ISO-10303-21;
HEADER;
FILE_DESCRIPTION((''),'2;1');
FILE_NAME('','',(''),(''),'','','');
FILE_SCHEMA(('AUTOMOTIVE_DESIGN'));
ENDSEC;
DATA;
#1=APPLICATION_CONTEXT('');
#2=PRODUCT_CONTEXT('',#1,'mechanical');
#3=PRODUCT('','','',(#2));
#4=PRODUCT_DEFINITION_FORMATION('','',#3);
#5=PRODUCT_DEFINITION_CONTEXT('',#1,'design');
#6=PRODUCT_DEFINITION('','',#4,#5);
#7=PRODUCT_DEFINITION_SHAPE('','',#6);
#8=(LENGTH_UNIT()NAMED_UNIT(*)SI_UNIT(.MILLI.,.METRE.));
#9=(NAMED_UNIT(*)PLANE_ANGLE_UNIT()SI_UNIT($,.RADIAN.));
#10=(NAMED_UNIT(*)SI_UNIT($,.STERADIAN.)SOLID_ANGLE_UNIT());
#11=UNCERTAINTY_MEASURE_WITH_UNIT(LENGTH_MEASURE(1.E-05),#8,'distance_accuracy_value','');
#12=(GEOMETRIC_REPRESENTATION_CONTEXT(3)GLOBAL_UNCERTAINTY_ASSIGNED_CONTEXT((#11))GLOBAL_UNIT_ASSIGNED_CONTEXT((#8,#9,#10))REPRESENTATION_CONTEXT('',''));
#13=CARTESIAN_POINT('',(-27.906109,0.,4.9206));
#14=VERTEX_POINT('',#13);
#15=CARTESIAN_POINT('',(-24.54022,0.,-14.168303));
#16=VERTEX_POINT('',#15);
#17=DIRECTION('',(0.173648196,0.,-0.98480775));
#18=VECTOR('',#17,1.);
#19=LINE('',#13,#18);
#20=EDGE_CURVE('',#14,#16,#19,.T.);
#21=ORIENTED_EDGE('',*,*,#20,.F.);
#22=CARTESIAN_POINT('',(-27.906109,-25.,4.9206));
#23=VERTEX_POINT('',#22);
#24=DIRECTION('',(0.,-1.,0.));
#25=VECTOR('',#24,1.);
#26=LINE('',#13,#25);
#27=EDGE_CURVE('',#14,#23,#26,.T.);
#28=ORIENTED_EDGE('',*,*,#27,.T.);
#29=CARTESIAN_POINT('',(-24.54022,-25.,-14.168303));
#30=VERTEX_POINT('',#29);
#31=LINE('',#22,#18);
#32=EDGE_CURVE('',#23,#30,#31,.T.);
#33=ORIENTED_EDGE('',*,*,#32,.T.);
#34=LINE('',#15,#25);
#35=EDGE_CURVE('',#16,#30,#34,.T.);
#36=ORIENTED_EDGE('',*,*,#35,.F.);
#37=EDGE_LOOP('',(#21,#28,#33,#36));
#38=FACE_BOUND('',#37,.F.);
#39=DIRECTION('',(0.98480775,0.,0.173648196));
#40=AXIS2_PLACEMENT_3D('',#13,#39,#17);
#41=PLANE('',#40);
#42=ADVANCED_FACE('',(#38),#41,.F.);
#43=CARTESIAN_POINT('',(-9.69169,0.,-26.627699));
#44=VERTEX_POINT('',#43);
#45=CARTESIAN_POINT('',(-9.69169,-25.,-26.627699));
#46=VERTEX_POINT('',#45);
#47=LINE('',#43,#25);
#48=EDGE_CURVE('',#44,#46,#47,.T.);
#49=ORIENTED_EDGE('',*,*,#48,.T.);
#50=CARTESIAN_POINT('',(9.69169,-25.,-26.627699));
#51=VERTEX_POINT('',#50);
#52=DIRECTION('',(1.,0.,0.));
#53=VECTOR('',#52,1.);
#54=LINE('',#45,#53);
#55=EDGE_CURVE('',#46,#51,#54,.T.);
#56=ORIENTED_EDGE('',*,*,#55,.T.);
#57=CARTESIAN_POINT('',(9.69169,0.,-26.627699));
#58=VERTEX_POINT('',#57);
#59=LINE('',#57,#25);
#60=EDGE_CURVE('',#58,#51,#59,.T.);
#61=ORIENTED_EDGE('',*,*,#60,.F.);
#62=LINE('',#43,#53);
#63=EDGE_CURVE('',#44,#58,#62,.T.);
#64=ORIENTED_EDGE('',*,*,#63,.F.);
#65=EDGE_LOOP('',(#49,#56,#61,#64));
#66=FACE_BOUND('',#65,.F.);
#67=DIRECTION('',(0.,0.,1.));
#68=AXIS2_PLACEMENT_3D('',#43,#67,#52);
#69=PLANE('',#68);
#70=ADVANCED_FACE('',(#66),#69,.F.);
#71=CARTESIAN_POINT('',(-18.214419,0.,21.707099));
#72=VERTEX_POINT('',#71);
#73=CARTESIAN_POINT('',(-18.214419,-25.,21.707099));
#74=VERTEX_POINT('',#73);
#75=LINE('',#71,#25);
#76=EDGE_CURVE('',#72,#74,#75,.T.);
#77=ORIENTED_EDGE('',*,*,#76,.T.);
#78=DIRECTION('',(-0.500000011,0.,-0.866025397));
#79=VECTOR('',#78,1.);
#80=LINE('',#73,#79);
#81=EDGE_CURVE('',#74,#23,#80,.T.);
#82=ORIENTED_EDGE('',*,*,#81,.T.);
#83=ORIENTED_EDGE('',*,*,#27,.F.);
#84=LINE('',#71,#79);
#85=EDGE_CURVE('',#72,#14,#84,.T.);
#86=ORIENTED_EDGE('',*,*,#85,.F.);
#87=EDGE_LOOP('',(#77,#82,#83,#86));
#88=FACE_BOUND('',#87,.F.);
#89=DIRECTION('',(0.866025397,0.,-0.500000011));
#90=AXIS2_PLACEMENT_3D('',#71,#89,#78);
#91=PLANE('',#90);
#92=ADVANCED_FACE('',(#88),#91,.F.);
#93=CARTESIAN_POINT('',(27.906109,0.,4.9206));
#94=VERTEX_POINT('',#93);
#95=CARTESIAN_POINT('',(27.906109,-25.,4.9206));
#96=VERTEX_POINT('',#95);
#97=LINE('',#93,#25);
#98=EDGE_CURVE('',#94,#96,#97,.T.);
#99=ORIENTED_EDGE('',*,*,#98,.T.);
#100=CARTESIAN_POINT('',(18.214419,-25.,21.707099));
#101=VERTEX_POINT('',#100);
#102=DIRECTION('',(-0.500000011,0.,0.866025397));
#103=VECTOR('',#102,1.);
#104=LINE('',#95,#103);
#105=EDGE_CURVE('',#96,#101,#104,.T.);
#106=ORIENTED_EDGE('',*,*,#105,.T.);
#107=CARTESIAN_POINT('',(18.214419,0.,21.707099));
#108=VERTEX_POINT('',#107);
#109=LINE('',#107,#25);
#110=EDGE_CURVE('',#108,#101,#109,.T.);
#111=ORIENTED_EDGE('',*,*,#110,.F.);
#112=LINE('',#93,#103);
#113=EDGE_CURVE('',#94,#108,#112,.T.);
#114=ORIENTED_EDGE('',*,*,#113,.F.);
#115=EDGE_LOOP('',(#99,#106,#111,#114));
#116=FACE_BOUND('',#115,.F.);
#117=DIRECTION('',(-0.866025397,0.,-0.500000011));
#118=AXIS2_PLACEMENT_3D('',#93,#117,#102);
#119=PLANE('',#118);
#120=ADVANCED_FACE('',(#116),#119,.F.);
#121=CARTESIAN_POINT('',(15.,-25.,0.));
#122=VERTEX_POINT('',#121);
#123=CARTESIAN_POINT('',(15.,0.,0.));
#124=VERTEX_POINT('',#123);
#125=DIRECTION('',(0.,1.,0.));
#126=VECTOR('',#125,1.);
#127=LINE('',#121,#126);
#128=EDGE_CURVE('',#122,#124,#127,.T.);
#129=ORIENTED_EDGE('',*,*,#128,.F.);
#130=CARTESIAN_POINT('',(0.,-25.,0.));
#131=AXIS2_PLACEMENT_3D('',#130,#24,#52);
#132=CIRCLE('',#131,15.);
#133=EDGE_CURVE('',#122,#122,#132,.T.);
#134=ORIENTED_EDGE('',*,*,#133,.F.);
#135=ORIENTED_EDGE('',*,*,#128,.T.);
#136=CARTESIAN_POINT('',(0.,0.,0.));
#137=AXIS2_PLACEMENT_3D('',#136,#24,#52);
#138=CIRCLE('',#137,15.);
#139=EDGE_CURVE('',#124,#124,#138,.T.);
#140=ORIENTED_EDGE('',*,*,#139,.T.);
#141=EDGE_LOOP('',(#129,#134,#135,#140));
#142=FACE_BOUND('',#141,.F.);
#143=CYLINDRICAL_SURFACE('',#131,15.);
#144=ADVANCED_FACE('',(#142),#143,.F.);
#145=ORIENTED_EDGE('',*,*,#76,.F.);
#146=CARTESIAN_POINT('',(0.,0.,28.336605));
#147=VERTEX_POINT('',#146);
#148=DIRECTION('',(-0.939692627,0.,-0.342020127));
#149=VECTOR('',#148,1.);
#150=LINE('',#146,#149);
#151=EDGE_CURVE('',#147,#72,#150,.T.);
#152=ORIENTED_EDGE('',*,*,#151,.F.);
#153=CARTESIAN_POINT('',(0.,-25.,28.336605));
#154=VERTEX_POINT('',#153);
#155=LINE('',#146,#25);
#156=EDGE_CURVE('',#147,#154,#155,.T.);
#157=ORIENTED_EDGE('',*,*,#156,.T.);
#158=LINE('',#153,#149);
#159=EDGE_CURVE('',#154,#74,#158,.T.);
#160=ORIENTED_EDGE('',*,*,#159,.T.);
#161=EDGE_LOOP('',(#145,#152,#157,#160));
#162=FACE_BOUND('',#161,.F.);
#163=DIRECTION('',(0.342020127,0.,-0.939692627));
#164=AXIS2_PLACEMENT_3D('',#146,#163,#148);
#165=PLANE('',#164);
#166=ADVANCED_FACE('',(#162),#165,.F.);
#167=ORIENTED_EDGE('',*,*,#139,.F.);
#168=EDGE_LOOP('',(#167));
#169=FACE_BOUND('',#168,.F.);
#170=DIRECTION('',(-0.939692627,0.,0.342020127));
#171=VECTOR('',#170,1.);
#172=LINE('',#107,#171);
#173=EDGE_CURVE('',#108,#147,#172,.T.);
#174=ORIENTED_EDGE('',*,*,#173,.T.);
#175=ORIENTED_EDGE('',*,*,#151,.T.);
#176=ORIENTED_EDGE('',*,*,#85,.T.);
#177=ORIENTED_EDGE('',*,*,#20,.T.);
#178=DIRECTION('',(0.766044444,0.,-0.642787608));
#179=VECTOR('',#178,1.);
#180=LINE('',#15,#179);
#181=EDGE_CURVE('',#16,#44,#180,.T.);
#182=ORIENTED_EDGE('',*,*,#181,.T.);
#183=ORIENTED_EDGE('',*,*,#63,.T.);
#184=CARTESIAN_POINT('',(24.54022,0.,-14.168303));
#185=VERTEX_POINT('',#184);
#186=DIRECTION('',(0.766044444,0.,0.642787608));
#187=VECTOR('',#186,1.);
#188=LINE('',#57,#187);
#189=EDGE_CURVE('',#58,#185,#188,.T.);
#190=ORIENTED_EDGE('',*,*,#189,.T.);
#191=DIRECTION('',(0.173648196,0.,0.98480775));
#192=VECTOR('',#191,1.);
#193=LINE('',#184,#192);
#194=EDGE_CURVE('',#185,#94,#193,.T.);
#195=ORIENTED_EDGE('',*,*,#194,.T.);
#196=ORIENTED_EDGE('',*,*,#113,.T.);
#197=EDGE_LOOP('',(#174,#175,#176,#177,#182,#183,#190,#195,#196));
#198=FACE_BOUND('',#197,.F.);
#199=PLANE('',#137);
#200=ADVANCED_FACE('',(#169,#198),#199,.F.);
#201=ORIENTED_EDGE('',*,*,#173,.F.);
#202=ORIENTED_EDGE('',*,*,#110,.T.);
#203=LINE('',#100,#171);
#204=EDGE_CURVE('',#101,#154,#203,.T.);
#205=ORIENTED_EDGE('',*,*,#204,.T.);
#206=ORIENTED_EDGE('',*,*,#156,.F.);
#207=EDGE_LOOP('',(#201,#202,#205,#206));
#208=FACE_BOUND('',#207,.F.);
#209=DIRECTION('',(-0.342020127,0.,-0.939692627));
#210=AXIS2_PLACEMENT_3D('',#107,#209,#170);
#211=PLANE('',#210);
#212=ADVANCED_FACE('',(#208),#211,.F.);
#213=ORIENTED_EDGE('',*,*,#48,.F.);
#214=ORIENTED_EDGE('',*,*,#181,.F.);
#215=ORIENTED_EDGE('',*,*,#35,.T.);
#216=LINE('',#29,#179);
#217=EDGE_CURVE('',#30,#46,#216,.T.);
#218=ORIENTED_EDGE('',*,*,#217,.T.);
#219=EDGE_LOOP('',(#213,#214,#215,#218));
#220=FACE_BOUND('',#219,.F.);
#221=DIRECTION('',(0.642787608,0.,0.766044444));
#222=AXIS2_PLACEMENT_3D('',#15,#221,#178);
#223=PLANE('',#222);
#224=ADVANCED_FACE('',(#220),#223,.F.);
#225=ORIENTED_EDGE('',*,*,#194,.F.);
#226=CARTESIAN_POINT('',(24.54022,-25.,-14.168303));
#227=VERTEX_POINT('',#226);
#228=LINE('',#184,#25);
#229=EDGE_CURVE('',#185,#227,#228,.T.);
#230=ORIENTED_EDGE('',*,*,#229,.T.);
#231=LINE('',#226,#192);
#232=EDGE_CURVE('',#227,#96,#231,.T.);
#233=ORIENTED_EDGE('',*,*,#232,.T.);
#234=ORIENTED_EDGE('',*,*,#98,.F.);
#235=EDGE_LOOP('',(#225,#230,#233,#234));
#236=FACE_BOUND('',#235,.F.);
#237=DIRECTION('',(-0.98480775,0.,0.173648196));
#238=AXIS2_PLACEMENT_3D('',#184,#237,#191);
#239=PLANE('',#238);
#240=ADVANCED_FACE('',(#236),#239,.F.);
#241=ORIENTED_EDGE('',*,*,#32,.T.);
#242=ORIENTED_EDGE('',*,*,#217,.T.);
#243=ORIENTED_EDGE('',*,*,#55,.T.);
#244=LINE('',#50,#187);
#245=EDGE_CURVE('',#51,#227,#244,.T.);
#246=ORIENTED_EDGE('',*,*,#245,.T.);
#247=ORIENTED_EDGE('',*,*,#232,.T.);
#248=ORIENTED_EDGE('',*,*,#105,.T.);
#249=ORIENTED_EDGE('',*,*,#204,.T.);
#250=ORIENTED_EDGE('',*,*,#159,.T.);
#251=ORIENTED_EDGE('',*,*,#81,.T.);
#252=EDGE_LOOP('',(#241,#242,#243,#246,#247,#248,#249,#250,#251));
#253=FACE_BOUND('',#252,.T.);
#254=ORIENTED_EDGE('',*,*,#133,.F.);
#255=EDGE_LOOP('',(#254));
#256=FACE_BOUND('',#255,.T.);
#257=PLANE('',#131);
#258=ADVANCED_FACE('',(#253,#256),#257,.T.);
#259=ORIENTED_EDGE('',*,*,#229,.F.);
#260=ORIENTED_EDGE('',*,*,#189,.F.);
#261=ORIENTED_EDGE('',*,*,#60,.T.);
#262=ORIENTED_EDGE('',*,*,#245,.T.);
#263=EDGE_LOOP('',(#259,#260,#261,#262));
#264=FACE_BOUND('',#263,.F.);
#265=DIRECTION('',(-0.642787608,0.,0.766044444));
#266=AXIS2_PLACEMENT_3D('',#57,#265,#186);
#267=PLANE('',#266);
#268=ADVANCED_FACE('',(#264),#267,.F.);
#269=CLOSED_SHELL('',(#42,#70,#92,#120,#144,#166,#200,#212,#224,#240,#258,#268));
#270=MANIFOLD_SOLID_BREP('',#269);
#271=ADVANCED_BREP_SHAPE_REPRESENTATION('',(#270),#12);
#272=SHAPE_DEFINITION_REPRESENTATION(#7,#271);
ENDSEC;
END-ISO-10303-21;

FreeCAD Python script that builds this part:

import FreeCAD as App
import Part
import Sketcher

V = App.Vector
Q = App.Units.Quantity

doc = App.newDocument("Part")
body = doc.addObject("PartDesign::Body", "Body")

sketch1 = doc.addObject("Sketcher::SketchObject", "Sketch")
body.addObject(sketch1)
sketch1.AttachmentSupport = (doc.XZ_Plane, [""])
sketch1.MapMode = "FlatFace"
sketch1.addGeometry(Part.LineSegment(V(-10, -27, 0), V(10, -27, 0)), False)
sketch1.addGeometry(Part.LineSegment(V(10, -27, 0), V(25, -14, 0)), False)
sketch1.addGeometry(Part.LineSegment(V(25, -14, 0), V(28, 5, 0)), False)
sketch1.addGeometry(Part.LineSegment(V(28, 5, 0), V(18, 22, 0)), False)
sketch1.addGeometry(Part.LineSegment(V(18, 22, 0), V(0, 28, 0)), False)
sketch1.addGeometry(Part.LineSegment(V(0, 28, 0), V(-18, 22, 0)), False)
sketch1.addGeometry(Part.LineSegment(V(-18, 22, 0), V(-28, 5, 0)), False)
sketch1.addGeometry(Part.LineSegment(V(-28, 5, 0), V(-25, -14, 0)), False)
sketch1.addGeometry(Part.LineSegment(V(-25, -14, 0), V(-10, -27, 0)), False)
sketch1.addConstraint(Sketcher.Constraint("Coincident", 0, 2, 1, 1))
sketch1.addConstraint(Sketcher.Constraint("Coincident", 1, 2, 2, 1))
sketch1.addConstraint(Sketcher.Constraint("Coincident", 2, 2, 3, 1))
sketch1.addConstraint(Sketcher.Constraint("Coincident", 3, 2, 4, 1))
sketch1.addConstraint(Sketcher.Constraint("Coincident", 4, 2, 5, 1))
sketch1.addConstraint(Sketcher.Constraint("Coincident", 5, 2, 6, 1))
sketch1.addConstraint(Sketcher.Constraint("Coincident", 6, 2, 7, 1))
sketch1.addConstraint(Sketcher.Constraint("Coincident", 7, 2, 8, 1))
sketch1.addConstraint(Sketcher.Constraint("Coincident", 8, 2, 0, 1))
sketch1.addConstraint(Sketcher.Constraint("Horizontal", 0))
sketch1.addConstraint(Sketcher.Constraint("Symmetric", 3, 2, 5, 2, -2))
sketch1.addConstraint(Sketcher.Constraint("Symmetric", 2, 2, 6, 2, -2))
sketch1.addConstraint(Sketcher.Constraint("Symmetric", 1, 2, 7, 2, -2))
sketch1.addConstraint(Sketcher.Constraint("PointOnObject", 4, 2, -2))
sketch1.addConstraint(Sketcher.Constraint("Equal", 1, 2))
sketch1.addConstraint(Sketcher.Constraint("Equal", 2, 3))
sketch1.addConstraint(Sketcher.Constraint("Equal", 3, 4))
sketch1.addConstraint(Sketcher.Constraint("Equal", 7, 8))
sketch1.addConstraint(Sketcher.Constraint("Angle", 1, Q("40 deg")))
sketch1.addConstraint(Sketcher.Constraint("Angle", 2, Q("79.999999 deg")))
sketch1.addConstraint(Sketcher.Constraint("Angle", 3, Q("120.000001 deg")))
sketch1.addConstraint(Sketcher.Constraint("Angle", 4, Q("160.000001 deg")))
sketch1.addConstraint(Sketcher.Constraint("DistanceX", 0, 1, 0, 2, Q("19.38338 mm")))
sketch1.addConstraint(Sketcher.Constraint("DistanceY", 0, 2, -1, 1, Q("26.627699 mm")))
pad1 = doc.addObject("PartDesign::Pad", "Pad")
body.addObject(pad1)
pad1.Profile = sketch1
pad1.Length = 25

sketch2 = doc.addObject("Sketcher::SketchObject", "Sketch001")
body.addObject(sketch2)
sketch2.AttachmentSupport = (doc.XZ_Plane, [""])
sketch2.MapMode = "FlatFace"
sketch2.AttachmentOffset = App.Placement(V(0, 0, 25), App.Rotation())
sketch2.addGeometry(Part.Circle(V(0, 0, 0), V(0, 0, 1), 15), False)
sketch2.addConstraint(Sketcher.Constraint("Coincident", 0, 3, -1, 1))
sketch2.addConstraint(Sketcher.Constraint("Diameter", 0, Q("30 mm")))
pocket1 = doc.addObject("PartDesign::Pocket", "Pocket")
body.addObject(pocket1)
pocket1.Profile = sketch2
pocket1.Length = 44.4

doc.recompute()
